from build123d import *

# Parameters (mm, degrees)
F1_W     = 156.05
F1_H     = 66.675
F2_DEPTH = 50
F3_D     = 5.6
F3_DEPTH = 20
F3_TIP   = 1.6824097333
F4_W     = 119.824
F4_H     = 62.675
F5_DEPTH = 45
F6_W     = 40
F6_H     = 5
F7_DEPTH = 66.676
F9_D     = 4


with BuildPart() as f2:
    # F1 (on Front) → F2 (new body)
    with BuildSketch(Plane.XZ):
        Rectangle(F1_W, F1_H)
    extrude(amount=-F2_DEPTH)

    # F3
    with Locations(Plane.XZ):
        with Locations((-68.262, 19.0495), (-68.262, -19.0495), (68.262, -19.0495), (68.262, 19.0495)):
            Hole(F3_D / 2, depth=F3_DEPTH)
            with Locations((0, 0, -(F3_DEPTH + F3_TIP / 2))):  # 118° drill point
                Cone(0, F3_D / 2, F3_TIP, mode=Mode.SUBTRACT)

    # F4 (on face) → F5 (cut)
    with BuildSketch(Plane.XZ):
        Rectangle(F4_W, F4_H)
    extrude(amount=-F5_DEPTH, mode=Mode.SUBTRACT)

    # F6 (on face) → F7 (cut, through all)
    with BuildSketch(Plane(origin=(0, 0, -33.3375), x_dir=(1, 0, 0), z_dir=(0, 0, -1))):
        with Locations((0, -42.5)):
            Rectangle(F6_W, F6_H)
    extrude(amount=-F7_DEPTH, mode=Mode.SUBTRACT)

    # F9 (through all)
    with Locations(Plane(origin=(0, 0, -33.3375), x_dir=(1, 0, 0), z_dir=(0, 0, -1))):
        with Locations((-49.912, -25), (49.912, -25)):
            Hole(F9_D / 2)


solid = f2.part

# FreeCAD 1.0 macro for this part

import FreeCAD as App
import Part
import Sketcher


def add_polygon(sketch, points):
    """Adds a closed chain of lines whose ends are joined by coincident constraints."""
    first, n = sketch.GeometryCount, len(points)
    for a, b in zip(points, points[1:] + points[:1]):
        sketch.addGeometry(Part.LineSegment(App.Vector(*a, 0), App.Vector(*b, 0)), False)
    for i in range(n):
        sketch.addConstraint(Sketcher.Constraint("Coincident", first + i, 2, first + (i + 1) % n, 1))

doc = App.newDocument("Part")
body = doc.addObject("PartDesign::Body", "Body")

# Sketch on XZ plane
sketch1 = body.newObject("Sketcher::SketchObject", "Sketch")
sketch1.AttachmentSupport = (doc.getObject("XZ_Plane"), [""])
sketch1.MapMode = "FlatFace"
add_polygon(sketch1, [(-78, 33), (-78, -33), (78, -33), (78, 33)])  # lines 0-3
sketch1.addConstraint(Sketcher.Constraint("Vertical", 0))
sketch1.addConstraint(Sketcher.Constraint("Horizontal", 1))
sketch1.addConstraint(Sketcher.Constraint("Vertical", 2))
sketch1.addConstraint(Sketcher.Constraint("Horizontal", 3))
sketch1.addConstraint(Sketcher.Constraint("Symmetric", 0, 2, 2, 2, -1, 1))
sketch1.addConstraint(Sketcher.Constraint("DistanceX", 1, 1, 1, 2, 156.05))
sketch1.addConstraint(Sketcher.Constraint("DistanceY", 0, 2, 0, 1, 66.675))
pad1 = body.newObject("PartDesign::Pad", "Pad")
pad1.Profile = sketch1
pad1.Length = 50
pad1.Reversed = True

# Sketch on XZ plane
sketch2 = body.newObject("Sketcher::SketchObject", "Sketch001")
sketch2.AttachmentSupport = (doc.getObject("XZ_Plane"), [""])
sketch2.MapMode = "FlatFace"
sketch2.addGeometry(Part.Circle(App.Vector(-68.3, 19, 0), App.Vector(0, 0, 1), 2.8), False)
sketch2.addGeometry(Part.Circle(App.Vector(-68.3, -19, 0), App.Vector(0, 0, 1), 2.8), False)
sketch2.addGeometry(Part.Circle(App.Vector(68.3, -19, 0), App.Vector(0, 0, 1), 2.8), False)
sketch2.addGeometry(Part.Circle(App.Vector(68.3, 19, 0), App.Vector(0, 0, 1), 2.8), False)
sketch2.addConstraint(Sketcher.Constraint("Equal", 0, 1))
sketch2.addConstraint(Sketcher.Constraint("Equal", 1, 2))
sketch2.addConstraint(Sketcher.Constraint("Equal", 2, 3))
sketch2.addConstraint(Sketcher.Constraint("Symmetric", 0, 3, 2, 3, -1, 1))
sketch2.addConstraint(Sketcher.Constraint("Symmetric", 1, 3, 3, 3, -1, 1))
sketch2.addConstraint(Sketcher.Constraint("Symmetric", 1, 3, 2, 3, -2))
sketch2.addConstraint(Sketcher.Constraint("Diameter", 0, 5.6))
sketch2.addConstraint(Sketcher.Constraint("DistanceX", 0, 3, -1, 1, 68.262))
sketch2.addConstraint(Sketcher.Constraint("DistanceY", 1, 3, 0, 3, 38.099))
doc.recompute()
hole = body.newObject("PartDesign::Hole", "Hole")
hole.Profile = sketch2
hole.ThreadType = "None"
hole.Diameter = 5.6
hole.DepthType = "Dimension"
hole.Depth = 20
hole.DrillPoint = "Angled"
hole.DrillPointAngle = 118

# Sketch on XZ plane
sketch3 = body.newObject("Sketcher::SketchObject", "Sketch002")
sketch3.AttachmentSupport = (doc.getObject("XZ_Plane"), [""])
sketch3.MapMode = "FlatFace"
add_polygon(sketch3, [(-60, 31), (-60, -31), (60, -31), (60, 31)])  # lines 0-3
sketch3.addConstraint(Sketcher.Constraint("Vertical", 0))
sketch3.addConstraint(Sketcher.Constraint("Horizontal", 1))
sketch3.addConstraint(Sketcher.Constraint("Vertical", 2))
sketch3.addConstraint(Sketcher.Constraint("Horizontal", 3))
sketch3.addConstraint(Sketcher.Constraint("Symmetric", 0, 2, 2, 2, -1, 1))
sketch3.addConstraint(Sketcher.Constraint("DistanceX", 1, 1, 1, 2, 119.824))
sketch3.addConstraint(Sketcher.Constraint("DistanceY", 0, 2, 0, 1, 62.675))
pocket1 = body.newObject("PartDesign::Pocket", "Pocket")
pocket1.Profile = sketch3
pocket1.Length = 45

# Sketch on XY plane
sketch4 = body.newObject("Sketcher::SketchObject", "Sketch003")
sketch4.AttachmentSupport = (doc.getObject("XY_Plane"), [""])
sketch4.MapMode = "FlatFace"
sketch4.AttachmentOffset = App.Placement(App.Vector(0, 0, -33.3375), App.Rotation())
add_polygon(sketch4, [(-20, 40), (-20, 45), (20, 45), (20, 40)])  # lines 0-3
sketch4.addConstraint(Sketcher.Constraint("Vertical", 0))
sketch4.addConstraint(Sketcher.Constraint("Horizontal", 1))
sketch4.addConstraint(Sketcher.Constraint("Vertical", 2))
sketch4.addConstraint(Sketcher.Constraint("Horizontal", 3))
sketch4.addConstraint(Sketcher.Constraint("DistanceX", 1, 1, 1, 2, 40.0))
sketch4.addConstraint(Sketcher.Constraint("DistanceY", 0, 1, 0, 2, 5.0))
sketch4.addConstraint(Sketcher.Constraint("DistanceX", 0, 2, -1, 1, 20.0))
sketch4.addConstraint(Sketcher.Constraint("DistanceY", -1, 1, 0, 2, 45.0))
pocket2 = body.newObject("PartDesign::Pocket", "Pocket001")
pocket2.Profile = sketch4
pocket2.Type = "ThroughAll"
pocket2.Reversed = True

# Sketch on XY plane
sketch5 = body.newObject("Sketcher::SketchObject", "Sketch004")
sketch5.AttachmentSupport = (doc.getObject("XY_Plane"), [""])
sketch5.MapMode = "FlatFace"
sketch5.AttachmentOffset = App.Placement(App.Vector(0, 0, -33.3375), App.Rotation())
sketch5.addGeometry(Part.Circle(App.Vector(-49.9, 25, 0), App.Vector(0, 0, 1), 2), False)
sketch5.addGeometry(Part.Circle(App.Vector(49.9, 25, 0), App.Vector(0, 0, 1), 2), False)
sketch5.addConstraint(Sketcher.Constraint("Equal", 0, 1))
sketch5.addConstraint(Sketcher.Constraint("Symmetric", 0, 3, 1, 3, -2))
sketch5.addConstraint(Sketcher.Constraint("Diameter", 0, 4.0))
sketch5.addConstraint(Sketcher.Constraint("DistanceY", -1, 1, 0, 3, 25.0))
sketch5.addConstraint(Sketcher.Constraint("DistanceX", 0, 3, -1, 1, 49.912))
doc.recompute()
hole2 = body.newObject("PartDesign::Hole", "Hole001")
hole2.Profile = sketch5
hole2.ThreadType = "None"
hole2.Diameter = 4
hole2.DepthType = "ThroughAll"
hole2.Reversed = True

doc.recompute()
